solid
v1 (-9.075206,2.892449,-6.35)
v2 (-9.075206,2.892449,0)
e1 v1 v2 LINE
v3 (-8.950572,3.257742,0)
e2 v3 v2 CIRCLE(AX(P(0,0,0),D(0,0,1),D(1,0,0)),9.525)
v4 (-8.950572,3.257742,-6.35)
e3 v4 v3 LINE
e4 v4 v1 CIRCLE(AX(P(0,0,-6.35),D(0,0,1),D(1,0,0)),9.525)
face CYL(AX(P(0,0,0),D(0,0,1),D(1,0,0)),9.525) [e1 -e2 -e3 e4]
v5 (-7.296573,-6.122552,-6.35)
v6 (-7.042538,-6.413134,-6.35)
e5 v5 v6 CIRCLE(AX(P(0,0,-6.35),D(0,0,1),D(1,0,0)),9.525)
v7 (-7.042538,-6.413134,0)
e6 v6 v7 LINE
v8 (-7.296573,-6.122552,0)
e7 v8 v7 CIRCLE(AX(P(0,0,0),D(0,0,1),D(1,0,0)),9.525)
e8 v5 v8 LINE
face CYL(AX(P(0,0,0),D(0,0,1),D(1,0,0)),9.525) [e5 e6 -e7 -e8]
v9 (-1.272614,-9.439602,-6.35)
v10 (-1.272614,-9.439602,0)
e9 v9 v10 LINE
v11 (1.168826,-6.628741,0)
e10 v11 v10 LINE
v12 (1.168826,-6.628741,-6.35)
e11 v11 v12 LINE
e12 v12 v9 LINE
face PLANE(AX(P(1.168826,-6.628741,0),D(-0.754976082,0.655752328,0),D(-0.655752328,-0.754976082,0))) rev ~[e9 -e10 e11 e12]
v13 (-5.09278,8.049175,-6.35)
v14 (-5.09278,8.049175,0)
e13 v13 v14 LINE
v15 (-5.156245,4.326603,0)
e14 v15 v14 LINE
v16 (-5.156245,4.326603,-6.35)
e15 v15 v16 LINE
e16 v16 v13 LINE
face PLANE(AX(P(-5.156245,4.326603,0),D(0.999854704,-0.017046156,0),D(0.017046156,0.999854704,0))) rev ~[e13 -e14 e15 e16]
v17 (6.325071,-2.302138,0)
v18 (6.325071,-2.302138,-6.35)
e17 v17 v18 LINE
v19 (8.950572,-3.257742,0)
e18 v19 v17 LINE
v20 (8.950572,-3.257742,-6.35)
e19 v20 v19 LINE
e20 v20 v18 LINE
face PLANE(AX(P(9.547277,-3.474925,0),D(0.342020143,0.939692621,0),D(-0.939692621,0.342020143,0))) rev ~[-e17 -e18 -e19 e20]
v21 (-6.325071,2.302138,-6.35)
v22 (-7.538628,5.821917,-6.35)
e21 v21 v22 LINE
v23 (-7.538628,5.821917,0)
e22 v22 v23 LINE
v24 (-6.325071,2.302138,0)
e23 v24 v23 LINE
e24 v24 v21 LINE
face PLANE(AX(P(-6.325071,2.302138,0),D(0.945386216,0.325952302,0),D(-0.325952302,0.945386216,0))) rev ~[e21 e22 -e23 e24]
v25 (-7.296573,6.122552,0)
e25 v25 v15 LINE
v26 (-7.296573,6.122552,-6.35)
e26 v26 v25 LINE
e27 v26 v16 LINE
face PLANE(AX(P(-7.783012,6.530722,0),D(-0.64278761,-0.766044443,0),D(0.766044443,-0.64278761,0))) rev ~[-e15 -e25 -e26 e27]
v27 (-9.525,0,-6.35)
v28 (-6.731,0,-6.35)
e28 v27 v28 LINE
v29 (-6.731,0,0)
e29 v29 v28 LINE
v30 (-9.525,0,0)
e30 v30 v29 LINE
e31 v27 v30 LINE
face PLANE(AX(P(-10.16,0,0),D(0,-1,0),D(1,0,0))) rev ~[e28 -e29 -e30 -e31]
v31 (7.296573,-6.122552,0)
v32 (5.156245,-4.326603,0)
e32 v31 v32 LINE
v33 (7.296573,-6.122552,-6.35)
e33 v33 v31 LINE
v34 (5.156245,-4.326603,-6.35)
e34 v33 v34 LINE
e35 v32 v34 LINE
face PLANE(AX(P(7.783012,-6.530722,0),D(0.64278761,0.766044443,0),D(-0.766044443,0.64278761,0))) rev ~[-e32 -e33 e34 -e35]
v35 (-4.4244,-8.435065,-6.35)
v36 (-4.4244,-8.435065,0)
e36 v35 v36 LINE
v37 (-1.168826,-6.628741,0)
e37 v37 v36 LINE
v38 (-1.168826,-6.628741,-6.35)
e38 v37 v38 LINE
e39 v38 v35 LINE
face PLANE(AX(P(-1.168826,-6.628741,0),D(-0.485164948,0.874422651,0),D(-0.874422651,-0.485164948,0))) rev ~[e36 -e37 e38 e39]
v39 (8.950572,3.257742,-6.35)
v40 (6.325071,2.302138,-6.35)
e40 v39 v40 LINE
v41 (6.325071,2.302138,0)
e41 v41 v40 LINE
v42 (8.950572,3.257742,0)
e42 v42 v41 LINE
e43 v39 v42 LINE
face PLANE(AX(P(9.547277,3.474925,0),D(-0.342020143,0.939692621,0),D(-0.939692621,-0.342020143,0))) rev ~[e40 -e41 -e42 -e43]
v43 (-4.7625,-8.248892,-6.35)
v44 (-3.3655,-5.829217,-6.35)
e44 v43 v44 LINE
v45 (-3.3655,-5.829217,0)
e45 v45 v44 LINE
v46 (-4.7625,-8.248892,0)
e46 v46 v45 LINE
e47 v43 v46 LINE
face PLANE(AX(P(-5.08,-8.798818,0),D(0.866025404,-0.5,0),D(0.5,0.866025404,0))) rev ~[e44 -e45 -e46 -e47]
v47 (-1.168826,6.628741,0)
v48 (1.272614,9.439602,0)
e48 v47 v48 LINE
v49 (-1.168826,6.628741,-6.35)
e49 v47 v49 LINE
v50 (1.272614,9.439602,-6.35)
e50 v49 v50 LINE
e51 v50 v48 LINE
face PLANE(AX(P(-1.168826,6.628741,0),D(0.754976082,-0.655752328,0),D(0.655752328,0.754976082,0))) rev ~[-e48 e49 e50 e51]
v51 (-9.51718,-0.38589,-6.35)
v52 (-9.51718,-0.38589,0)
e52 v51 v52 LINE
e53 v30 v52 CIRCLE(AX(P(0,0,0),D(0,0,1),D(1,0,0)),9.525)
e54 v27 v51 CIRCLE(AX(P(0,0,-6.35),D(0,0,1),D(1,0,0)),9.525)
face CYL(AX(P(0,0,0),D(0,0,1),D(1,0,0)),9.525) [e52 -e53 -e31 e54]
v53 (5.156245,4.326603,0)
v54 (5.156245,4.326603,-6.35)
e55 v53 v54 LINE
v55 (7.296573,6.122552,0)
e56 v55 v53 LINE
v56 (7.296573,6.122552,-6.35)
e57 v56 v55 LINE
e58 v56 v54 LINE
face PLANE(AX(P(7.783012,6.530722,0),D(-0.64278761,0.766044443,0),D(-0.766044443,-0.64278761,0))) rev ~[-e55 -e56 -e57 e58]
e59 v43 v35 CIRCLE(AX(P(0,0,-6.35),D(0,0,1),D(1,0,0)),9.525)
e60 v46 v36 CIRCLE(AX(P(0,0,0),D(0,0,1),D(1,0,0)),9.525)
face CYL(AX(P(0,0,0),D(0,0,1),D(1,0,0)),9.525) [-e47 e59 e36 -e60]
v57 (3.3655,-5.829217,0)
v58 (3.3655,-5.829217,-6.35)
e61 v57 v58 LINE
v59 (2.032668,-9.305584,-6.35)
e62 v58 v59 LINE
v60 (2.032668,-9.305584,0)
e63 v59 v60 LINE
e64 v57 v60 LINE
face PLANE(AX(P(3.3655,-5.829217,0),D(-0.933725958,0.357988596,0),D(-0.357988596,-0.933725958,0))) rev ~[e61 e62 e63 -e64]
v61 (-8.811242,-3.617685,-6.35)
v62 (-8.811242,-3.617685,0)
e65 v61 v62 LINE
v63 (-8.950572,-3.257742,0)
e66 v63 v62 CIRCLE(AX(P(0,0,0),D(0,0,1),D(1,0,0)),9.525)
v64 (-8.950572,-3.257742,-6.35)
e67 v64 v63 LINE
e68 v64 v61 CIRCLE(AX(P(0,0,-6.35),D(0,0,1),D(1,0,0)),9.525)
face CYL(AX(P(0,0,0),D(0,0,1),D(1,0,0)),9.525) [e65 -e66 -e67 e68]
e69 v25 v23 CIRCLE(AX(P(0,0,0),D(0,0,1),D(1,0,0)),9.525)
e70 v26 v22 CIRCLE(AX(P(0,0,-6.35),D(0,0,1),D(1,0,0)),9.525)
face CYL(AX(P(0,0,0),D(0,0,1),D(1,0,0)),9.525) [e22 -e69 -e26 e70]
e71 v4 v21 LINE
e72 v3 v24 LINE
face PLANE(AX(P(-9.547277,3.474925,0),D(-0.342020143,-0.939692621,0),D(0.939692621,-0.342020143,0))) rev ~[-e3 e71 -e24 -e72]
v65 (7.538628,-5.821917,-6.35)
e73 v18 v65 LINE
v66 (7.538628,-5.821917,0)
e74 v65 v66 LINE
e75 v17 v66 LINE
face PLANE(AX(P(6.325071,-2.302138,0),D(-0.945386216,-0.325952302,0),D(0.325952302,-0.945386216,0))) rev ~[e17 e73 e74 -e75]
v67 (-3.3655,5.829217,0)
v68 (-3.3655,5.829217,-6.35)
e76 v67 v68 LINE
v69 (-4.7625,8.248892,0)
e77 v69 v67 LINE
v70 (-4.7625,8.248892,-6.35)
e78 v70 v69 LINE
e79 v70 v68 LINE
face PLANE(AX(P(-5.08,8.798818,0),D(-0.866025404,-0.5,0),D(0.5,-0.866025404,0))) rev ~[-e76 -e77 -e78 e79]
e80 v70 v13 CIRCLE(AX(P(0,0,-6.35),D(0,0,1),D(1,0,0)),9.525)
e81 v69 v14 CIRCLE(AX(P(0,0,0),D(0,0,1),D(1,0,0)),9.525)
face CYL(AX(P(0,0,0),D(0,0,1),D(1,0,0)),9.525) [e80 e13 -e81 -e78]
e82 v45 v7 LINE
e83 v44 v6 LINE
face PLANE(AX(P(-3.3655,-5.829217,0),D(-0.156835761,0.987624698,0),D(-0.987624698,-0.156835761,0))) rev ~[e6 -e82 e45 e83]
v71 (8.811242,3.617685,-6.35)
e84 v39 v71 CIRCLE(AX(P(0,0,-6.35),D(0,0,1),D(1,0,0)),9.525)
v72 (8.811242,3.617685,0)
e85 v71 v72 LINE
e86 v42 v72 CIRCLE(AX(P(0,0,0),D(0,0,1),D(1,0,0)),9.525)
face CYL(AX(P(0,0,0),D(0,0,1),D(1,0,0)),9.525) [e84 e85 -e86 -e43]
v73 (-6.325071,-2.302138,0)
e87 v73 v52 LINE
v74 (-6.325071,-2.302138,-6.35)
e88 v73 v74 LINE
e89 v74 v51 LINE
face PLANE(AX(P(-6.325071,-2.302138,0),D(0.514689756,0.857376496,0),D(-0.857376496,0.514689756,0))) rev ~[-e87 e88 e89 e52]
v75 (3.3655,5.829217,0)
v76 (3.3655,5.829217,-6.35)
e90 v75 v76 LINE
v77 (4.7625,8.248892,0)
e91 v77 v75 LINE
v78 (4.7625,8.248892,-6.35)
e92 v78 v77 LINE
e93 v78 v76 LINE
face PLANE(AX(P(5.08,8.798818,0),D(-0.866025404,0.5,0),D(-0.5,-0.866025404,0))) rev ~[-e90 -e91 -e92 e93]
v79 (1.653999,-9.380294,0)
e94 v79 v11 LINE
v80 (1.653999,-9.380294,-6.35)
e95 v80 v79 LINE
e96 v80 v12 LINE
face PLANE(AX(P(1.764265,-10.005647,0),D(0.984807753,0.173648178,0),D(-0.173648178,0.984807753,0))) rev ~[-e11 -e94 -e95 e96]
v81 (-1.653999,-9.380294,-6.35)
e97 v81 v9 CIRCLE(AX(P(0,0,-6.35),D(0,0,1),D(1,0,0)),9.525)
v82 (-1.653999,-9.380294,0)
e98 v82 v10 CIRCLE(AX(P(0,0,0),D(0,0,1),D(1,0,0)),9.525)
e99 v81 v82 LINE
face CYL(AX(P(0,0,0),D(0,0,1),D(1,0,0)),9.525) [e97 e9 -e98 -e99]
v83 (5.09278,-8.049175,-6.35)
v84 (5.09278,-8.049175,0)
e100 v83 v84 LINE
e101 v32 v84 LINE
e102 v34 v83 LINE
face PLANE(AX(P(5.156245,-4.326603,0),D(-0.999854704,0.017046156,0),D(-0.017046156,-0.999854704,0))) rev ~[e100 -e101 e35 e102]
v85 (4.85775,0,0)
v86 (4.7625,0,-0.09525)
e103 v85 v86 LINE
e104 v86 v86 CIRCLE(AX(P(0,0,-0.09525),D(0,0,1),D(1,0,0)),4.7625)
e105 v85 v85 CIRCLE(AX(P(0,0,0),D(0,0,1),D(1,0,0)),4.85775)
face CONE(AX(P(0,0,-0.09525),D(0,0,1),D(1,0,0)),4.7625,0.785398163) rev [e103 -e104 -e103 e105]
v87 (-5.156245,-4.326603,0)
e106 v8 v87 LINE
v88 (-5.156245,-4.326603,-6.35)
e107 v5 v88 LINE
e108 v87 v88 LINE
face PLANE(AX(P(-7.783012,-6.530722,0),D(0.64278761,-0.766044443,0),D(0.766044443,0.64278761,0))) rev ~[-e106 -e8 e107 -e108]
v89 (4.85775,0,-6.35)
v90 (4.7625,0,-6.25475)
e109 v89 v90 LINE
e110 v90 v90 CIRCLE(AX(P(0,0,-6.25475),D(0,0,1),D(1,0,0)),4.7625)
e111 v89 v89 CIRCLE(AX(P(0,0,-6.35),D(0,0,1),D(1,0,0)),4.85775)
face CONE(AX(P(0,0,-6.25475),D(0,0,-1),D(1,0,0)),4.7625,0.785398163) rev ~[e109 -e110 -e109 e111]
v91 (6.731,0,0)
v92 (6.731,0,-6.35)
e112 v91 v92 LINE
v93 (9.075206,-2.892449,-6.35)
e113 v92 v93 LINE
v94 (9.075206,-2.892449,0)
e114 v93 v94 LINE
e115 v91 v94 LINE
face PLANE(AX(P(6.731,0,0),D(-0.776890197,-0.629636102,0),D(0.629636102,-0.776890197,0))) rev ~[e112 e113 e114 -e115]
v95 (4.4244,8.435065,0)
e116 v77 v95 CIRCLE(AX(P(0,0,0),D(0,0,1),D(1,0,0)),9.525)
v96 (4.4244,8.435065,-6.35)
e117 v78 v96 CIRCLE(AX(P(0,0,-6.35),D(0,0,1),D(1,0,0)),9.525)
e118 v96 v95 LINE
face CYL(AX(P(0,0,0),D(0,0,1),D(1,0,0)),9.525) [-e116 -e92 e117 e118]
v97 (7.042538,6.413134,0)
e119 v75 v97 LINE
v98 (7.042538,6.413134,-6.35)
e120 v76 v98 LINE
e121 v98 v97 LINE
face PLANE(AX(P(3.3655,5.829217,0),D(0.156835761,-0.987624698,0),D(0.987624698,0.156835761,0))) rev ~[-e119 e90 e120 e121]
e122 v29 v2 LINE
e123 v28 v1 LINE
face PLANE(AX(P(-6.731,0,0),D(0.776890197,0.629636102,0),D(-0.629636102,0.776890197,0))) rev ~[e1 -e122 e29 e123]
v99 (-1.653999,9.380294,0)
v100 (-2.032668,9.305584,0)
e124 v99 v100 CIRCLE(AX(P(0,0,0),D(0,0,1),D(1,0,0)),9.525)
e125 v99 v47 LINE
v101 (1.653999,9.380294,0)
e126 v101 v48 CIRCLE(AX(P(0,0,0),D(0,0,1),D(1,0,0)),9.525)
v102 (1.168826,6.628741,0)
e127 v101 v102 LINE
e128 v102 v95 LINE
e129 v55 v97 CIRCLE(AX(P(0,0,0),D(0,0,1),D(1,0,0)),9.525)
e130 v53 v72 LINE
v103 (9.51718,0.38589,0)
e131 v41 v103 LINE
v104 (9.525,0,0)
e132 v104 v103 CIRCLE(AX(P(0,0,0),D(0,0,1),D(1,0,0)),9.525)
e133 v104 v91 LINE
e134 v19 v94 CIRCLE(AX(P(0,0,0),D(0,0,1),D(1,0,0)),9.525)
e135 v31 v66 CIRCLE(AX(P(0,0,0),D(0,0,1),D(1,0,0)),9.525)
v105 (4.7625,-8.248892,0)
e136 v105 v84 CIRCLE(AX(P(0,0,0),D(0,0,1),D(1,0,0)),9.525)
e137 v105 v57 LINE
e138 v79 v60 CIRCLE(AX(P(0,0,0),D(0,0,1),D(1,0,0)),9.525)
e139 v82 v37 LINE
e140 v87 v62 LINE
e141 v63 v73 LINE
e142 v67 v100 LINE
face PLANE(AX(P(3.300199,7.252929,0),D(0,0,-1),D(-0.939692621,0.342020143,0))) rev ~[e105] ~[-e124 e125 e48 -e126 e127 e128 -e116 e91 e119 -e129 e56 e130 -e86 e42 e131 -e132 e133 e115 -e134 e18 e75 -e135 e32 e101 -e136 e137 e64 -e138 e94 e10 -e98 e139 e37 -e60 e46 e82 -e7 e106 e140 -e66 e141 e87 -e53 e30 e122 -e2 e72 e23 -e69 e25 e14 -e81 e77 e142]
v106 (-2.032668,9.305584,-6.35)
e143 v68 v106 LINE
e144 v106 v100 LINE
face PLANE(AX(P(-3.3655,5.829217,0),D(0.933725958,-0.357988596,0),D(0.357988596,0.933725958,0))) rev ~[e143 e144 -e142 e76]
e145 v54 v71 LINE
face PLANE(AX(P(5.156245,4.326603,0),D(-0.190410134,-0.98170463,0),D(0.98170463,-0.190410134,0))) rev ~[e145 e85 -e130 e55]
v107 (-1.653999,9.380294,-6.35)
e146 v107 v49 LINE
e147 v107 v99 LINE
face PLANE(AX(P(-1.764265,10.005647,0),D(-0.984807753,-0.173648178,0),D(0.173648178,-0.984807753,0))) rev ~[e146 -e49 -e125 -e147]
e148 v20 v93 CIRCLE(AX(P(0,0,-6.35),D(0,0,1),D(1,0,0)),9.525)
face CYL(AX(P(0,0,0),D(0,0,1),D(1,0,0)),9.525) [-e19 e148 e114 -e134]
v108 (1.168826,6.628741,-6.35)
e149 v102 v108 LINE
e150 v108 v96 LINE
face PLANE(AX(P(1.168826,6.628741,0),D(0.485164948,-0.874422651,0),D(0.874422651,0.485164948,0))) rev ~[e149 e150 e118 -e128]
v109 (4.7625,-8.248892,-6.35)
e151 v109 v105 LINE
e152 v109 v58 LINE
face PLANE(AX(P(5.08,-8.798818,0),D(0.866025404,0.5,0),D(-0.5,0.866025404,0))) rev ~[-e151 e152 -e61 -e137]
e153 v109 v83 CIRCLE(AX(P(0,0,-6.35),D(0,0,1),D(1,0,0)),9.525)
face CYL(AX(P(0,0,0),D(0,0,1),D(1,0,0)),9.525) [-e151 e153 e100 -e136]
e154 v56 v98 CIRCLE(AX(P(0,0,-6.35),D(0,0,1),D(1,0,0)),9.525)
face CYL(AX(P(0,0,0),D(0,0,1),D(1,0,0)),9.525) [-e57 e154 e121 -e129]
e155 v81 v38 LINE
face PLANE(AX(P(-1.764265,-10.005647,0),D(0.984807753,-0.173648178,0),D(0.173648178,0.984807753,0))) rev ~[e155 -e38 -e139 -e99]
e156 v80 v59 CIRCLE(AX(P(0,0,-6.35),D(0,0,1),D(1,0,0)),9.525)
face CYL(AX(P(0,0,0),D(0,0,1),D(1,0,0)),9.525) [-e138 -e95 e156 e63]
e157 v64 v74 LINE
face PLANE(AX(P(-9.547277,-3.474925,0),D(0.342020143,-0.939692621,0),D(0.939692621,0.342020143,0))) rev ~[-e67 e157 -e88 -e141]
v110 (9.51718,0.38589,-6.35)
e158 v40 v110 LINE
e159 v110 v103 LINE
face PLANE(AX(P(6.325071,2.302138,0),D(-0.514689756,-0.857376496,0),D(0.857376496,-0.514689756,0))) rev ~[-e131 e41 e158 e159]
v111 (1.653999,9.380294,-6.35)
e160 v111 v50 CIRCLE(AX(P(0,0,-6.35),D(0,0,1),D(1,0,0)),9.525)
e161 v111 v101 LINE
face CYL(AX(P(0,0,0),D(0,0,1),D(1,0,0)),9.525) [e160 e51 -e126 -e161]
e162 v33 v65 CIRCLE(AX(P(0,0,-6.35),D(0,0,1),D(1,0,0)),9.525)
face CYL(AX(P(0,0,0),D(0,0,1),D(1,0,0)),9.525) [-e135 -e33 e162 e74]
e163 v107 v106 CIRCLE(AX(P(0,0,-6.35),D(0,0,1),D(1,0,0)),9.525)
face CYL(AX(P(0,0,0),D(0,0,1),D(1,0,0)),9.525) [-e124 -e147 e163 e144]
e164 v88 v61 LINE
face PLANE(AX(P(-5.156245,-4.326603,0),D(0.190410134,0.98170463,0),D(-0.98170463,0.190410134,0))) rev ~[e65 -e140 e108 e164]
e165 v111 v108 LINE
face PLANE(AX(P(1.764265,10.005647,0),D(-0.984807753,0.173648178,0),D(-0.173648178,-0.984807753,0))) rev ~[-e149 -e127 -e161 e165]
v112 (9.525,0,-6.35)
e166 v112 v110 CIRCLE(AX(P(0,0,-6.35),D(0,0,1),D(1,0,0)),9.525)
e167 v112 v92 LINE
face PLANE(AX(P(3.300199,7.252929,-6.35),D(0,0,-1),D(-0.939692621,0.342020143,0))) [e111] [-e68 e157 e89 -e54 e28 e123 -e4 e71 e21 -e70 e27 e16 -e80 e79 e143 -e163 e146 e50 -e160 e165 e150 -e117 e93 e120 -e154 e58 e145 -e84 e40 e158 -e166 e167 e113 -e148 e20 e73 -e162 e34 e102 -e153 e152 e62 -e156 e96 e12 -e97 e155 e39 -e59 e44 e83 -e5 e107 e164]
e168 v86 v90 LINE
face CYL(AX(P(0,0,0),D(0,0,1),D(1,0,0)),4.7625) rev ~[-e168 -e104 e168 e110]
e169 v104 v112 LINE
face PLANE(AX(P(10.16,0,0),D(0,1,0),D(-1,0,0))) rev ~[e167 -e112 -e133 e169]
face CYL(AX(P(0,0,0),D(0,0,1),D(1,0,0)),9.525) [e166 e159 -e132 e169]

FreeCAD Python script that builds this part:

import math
import FreeCAD as App
import Part
import Sketcher

V = App.Vector
Q = App.Units.Quantity


def edges_at(feature, points):
    """Names of the edges that pass closest to the given points."""
    edges = feature.Shape.Edges
    near = lambda p: min(range(len(edges)), key=lambda i: edges[i].distToShape(Part.Vertex(*p))[0])
    return sorted({f"Edge{near(p) + 1}" for p in points})

doc = App.newDocument("Part")
body = doc.addObject("PartDesign::Body", "Body")

# Sketch on XY plane
sketch1 = body.newObject("Sketcher::SketchObject", "Sketch")
sketch1.AttachmentSupport = (doc.getObject("XY_Plane"), [""])
sketch1.MapMode = "FlatFace"
sketch1.addGeometry([
    Part.Circle(V(0, 0, 0), V(0, 0, 1), 6.7),
    Part.Circle(V(0, 0, 0), V(0, 0, 1), 4.8),
], False)
sketch1.addConstraint([
    Sketcher.Constraint("Coincident", 0, 3, -1, 1),
    Sketcher.Constraint("Coincident", 1, 3, -1, 1),
    Sketcher.Constraint("Diameter", 0, Q("0.53 in")),
    Sketcher.Constraint("Diameter", 1, Q("0.375 in")),
])
pad1 = body.newObject("PartDesign::Pad", "Pad")
pad1.Profile = sketch1
pad1.Length = Q("0.25 in")
pad1.Reversed = True

# Sketch on XY plane
sketch2 = body.newObject("Sketcher::SketchObject", "Sketch001")
sketch2.AttachmentSupport = (doc.getObject("XY_Plane"), [""])
sketch2.MapMode = "FlatFace"
sketch2.addGeometry([
    Part.LineSegment(V(1.8, 10, 0), V(-1.2, 6.6, 0)),
    Part.ArcOfCircle(Part.Circle(V(0, 0, 0), V(0, 0, 1), 6.7), math.radians(80), math.radians(100)),
    Part.LineSegment(V(1.2, 6.6, 0), V(1.8, 10, 0)),
], False)
sketch2.addConstraint([
    Sketcher.Constraint("Coincident", 0, 2, 1, 2),
    Sketcher.Constraint("Coincident", 1, 1, 2, 1),
    Sketcher.Constraint("Coincident", 2, 2, 0, 1),
    Sketcher.Constraint("Coincident", 1, 3, -1, 1),
    Sketcher.Constraint("Horizontal", 0, 2, 1, 1),
    Sketcher.Constraint("Angle", 2, Q("80 deg")),
    Sketcher.Constraint("Radius", 1, Q("0.265 in")),
    Sketcher.Constraint("Distance", 2, Q("0.135 in")),
    Sketcher.Constraint("DistanceY", -1, 1, 0, 2, Q("6.628741 mm")),
])
pad2 = body.newObject("PartDesign::Pad", "Pad001")
pad2.Profile = sketch2
pad2.Length = Q("0.25 in")
pad2.Reversed = True
doc.recompute()

polarpattern = body.newObject("PartDesign::PolarPattern", "PolarPattern")
polarpattern.Originals = [pad2]
polarpattern.Axis = (doc.getObject("Z_Axis"), [""])
polarpattern.Angle = 360
polarpattern.Occurrences = 18
body.Tip = polarpattern
doc.recompute()

chamfer = body.newObject("PartDesign::Chamfer", "Chamfer")
chamfer.Base = (polarpattern, edges_at(polarpattern, [(-4.763, 0, -6.35), (-4.763, 0, 0)]))
chamfer.Size = 0.09525

# Sketch on XY plane
sketch3 = body.newObject("Sketcher::SketchObject", "Sketch002")
sketch3.AttachmentSupport = (doc.getObject("XY_Plane"), [""])
sketch3.MapMode = "FlatFace"
sketch3.addGeometry([
    Part.Circle(V(0, 0, 0), V(0, 0, 1), 314),
    Part.Circle(V(0, 0, 0), V(0, 0, 1), 10),
], False)
sketch3.addConstraint([
    Sketcher.Constraint("Coincident", 0, 3, -1, 1),
    Sketcher.Constraint("Coincident", 1, 3, -1, 1),
    Sketcher.Constraint("Diameter", 0, Q("24.75 in")),
    Sketcher.Constraint("Diameter", 1, Q("0.75 in")),
])
pocket1 = body.newObject("PartDesign::Pocket", "Pocket")
pocket1.Profile = sketch3
pocket1.Type = "ThroughAll"

doc.recompute()
